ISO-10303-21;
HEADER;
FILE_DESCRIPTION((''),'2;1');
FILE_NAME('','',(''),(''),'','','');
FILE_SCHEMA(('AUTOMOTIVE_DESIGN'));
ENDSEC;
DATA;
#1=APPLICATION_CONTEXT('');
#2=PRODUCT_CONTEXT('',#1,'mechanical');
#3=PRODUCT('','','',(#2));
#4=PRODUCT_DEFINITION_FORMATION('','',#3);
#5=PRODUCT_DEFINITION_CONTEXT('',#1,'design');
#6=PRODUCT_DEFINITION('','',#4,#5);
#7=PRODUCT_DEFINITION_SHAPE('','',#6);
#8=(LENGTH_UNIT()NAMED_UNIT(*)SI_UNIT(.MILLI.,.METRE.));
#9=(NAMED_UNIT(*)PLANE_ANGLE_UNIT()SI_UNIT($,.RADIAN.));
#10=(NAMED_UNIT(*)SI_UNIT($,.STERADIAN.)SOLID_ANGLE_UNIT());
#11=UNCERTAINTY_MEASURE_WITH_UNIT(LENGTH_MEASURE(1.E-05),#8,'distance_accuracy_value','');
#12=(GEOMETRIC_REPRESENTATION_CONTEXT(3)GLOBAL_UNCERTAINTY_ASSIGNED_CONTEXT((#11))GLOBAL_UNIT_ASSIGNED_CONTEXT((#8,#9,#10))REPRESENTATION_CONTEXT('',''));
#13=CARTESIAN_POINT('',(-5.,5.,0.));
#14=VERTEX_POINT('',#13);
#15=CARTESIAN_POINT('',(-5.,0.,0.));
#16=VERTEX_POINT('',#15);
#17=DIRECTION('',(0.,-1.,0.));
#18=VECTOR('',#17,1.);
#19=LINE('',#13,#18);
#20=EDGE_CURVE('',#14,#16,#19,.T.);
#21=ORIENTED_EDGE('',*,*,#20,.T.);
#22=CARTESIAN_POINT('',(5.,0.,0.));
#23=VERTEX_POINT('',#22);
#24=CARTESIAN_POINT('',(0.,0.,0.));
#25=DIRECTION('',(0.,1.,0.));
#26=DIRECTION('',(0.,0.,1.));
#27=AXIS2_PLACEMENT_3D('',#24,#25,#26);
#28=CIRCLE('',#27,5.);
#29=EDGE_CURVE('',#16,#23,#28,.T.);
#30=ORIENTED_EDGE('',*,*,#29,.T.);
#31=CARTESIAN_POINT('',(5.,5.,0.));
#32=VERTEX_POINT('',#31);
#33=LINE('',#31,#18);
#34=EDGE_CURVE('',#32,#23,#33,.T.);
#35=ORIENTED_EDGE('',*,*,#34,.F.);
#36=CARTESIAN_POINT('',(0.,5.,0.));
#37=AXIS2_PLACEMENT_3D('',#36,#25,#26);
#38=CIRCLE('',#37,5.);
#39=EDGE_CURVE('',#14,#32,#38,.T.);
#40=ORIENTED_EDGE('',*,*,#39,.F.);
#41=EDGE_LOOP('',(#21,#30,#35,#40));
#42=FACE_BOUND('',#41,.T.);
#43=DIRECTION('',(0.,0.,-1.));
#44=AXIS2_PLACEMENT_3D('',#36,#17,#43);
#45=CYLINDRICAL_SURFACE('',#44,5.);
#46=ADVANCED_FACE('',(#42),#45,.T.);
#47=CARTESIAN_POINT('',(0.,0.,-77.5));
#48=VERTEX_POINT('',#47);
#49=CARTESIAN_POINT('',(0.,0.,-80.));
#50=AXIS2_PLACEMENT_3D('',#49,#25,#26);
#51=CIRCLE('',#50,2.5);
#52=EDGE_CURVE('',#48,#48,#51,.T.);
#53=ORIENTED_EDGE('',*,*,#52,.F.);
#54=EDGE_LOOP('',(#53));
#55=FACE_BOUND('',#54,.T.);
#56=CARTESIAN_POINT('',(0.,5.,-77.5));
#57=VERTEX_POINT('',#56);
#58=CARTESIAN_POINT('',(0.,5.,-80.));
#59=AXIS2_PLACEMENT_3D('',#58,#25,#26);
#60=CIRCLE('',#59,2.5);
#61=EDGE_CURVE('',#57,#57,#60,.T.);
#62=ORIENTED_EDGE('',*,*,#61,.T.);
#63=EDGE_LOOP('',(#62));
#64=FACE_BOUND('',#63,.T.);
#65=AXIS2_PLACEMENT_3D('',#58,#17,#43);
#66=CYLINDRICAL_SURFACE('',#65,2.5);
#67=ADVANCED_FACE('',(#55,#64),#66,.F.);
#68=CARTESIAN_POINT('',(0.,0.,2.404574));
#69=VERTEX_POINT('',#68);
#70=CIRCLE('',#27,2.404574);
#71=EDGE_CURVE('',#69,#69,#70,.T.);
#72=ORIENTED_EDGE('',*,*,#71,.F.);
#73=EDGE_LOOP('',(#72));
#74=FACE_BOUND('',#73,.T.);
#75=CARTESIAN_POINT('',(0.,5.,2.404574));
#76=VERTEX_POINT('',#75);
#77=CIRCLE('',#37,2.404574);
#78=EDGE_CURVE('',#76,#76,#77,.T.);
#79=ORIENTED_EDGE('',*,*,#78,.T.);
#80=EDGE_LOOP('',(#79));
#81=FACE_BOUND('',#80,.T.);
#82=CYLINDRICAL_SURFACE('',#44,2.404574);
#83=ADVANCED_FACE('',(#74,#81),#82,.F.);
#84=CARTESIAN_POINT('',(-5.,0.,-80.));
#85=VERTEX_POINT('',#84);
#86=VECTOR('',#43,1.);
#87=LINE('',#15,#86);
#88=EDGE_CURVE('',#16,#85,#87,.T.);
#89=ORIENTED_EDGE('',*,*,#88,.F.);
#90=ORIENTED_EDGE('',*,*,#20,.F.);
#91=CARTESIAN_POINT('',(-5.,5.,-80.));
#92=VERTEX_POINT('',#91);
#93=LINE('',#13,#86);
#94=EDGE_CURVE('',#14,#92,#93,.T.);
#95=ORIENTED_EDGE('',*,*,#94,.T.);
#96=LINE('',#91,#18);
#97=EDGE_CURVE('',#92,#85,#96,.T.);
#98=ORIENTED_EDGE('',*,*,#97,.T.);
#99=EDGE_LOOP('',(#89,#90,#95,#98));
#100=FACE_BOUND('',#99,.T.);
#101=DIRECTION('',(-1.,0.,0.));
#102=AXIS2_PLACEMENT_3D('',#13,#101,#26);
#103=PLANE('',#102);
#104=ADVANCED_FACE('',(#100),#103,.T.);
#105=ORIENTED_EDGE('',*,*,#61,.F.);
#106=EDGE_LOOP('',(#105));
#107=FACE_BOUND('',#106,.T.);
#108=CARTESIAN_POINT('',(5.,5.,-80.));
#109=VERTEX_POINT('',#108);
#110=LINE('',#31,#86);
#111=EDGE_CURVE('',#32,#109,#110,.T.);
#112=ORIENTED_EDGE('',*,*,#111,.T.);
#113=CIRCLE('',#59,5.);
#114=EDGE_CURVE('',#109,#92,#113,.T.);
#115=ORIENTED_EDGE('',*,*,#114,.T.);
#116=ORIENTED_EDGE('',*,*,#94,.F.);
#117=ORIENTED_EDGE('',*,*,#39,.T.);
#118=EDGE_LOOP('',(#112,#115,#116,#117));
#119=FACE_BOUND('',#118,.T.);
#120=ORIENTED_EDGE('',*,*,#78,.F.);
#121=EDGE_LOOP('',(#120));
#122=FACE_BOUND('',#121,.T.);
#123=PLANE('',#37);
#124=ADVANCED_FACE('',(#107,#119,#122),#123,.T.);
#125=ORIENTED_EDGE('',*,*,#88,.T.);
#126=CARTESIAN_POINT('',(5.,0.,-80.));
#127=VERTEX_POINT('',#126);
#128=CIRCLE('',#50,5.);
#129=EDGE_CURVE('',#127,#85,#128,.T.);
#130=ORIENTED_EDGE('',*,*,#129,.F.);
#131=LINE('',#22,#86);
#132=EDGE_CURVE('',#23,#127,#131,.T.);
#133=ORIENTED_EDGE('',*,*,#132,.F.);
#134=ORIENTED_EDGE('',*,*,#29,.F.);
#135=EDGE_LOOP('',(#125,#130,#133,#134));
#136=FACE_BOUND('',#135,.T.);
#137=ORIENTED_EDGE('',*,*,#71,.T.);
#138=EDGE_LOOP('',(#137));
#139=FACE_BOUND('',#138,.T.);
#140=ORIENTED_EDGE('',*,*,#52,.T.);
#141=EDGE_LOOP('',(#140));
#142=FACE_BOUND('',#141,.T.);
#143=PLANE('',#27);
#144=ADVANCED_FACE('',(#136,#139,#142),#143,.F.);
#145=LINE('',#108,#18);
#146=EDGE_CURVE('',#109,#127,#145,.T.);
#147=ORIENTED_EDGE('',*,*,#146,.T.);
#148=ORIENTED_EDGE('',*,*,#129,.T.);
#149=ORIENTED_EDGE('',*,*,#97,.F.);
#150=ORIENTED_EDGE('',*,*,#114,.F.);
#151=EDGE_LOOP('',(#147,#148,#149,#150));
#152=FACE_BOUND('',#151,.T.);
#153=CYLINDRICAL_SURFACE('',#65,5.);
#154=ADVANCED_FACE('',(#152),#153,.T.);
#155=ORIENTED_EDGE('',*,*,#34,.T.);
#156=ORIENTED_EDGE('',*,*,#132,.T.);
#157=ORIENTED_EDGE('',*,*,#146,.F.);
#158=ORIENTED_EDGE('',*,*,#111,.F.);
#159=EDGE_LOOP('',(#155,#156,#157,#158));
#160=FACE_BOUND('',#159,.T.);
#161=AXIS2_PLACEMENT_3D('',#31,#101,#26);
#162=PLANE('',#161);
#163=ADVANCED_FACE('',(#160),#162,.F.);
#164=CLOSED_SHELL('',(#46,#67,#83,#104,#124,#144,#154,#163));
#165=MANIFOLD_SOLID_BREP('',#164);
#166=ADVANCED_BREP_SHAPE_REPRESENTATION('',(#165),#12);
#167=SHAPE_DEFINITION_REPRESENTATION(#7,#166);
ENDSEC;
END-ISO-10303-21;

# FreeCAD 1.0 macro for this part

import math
import FreeCAD as App
import Part
import Sketcher
Q = App.Units.Quantity

doc = App.newDocument("Part")
body = doc.addObject("PartDesign::Body", "Body")

sketch1 = body.newObject("Sketcher::SketchObject", "Sketch")
sketch1.AttachmentSupport = (doc.getObject("XZ_Plane"), [""])
sketch1.MapMode = "FlatFace"
sketch1.addGeometry(Part.LineSegment(App.Vector(5, 0, 0), App.Vector(5, -80, 0)), False)
sketch1.addGeometry(Part.ArcOfCircle(Part.Circle(App.Vector(0, -80, 0), App.Vector(0, 0, 1), 5), math.radians(180), math.radians(360)), False)
sketch1.addGeometry(Part.LineSegment(App.Vector(-5, -80, 0), App.Vector(-5, 0, 0)), False)
sketch1.addGeometry(Part.ArcOfCircle(Part.Circle(App.Vector(0, 0, 0), App.Vector(0, 0, 1), 5), math.radians(0), math.radians(180)), False)
sketch1.addGeometry(Part.Circle(App.Vector(0, -80, 0), App.Vector(0, 0, 1), 2.5), False)
sketch1.addGeometry(Part.Circle(App.Vector(0, 0, 0), App.Vector(0, 0, 1), 2.4), False)
sketch1.addConstraint(Sketcher.Constraint("Tangent", 0, 2, 1, 2))
sketch1.addConstraint(Sketcher.Constraint("Tangent", 1, 1, 2, 1))
sketch1.addConstraint(Sketcher.Constraint("Tangent", 2, 2, 3, 2))
sketch1.addConstraint(Sketcher.Constraint("Tangent", 3, 1, 0, 1))
sketch1.addConstraint(Sketcher.Constraint("Vertical", 0))
sketch1.addConstraint(Sketcher.Constraint("Vertical", 2))
sketch1.addConstraint(Sketcher.Constraint("Coincident", 3, 3, -1, 1))
sketch1.addConstraint(Sketcher.Constraint("Coincident", 5, 3, -1, 1))
sketch1.addConstraint(Sketcher.Constraint("Coincident", 4, 3, 1, 3))
sketch1.addConstraint(Sketcher.Constraint("Diameter", 4, Q("5 mm")))
sketch1.addConstraint(Sketcher.Constraint("Radius", 1, Q("5 mm")))
sketch1.addConstraint(Sketcher.Constraint("DistanceY", 0, 2, 0, 1, Q("80 mm")))
sketch1.addConstraint(Sketcher.Constraint("Diameter", 5, Q("4.809148 mm")))
pad1 = body.newObject("PartDesign::Pad", "Pad")
pad1.Profile = sketch1
pad1.Length = 5
pad1.Reversed = True

doc.recompute()
